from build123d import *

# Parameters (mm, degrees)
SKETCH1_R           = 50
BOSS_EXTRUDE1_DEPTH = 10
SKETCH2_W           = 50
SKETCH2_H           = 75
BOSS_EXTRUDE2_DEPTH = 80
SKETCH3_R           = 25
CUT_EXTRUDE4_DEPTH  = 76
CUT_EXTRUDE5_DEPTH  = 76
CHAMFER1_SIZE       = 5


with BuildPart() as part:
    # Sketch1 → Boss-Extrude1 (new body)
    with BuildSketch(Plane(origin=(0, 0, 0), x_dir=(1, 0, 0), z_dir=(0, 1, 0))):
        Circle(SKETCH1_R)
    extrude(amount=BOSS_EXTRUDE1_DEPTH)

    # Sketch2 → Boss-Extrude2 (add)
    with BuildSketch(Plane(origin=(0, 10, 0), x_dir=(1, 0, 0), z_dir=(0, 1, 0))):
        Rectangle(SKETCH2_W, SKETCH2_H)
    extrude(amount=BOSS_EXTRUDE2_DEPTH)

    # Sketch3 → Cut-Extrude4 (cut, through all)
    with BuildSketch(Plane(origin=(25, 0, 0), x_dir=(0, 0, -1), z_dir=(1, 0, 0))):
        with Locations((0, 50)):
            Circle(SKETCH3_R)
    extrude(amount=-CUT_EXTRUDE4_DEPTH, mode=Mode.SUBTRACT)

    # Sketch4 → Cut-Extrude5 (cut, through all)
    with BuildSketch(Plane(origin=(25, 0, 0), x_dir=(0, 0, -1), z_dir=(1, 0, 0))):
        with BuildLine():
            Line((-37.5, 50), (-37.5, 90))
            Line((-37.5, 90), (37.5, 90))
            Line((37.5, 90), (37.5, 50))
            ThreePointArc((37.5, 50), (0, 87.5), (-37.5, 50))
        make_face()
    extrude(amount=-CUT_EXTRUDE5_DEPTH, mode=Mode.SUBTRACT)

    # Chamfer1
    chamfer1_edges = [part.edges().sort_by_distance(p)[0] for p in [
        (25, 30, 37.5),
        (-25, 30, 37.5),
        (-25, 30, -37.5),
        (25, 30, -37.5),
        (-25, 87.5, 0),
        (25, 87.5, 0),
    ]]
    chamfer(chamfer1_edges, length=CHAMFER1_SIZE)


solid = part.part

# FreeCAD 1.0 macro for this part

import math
import FreeCAD as App
import Part
import Sketcher
from FreeCAD import Vector


def edges_at(feature, points):
    """Names of the edges that pass closest to the given points."""
    edges = feature.Shape.Edges
    near = lambda p: min(range(len(edges)), key=lambda i: edges[i].distToShape(Part.Vertex(*p))[0])
    return sorted({f"Edge{near(p) + 1}" for p in points})

doc = App.newDocument("Part")
body = doc.addObject("PartDesign::Body", "Body")

# Sketch on XZ plane
sketch1 = body.newObject("Sketcher::SketchObject", "Sketch")
sketch1.AttachmentSupport = (doc.getObject("XZ_Plane"), [""])
sketch1.MapMode = "FlatFace"
sketch1.addGeometry(Part.Circle(Vector(0, 0, 0), Vector(0, 0, 1), 50), False)
sketch1.addConstraint([
    Sketcher.Constraint("Coincident", 0, 3, -1, 1),
    Sketcher.Constraint("Diameter", 0, 100.0),
])
pad1 = body.newObject("PartDesign::Pad", "Pad")
pad1.Profile = sketch1
pad1.Length = 10
pad1.Reversed = True

# Sketch on XZ plane
sketch2 = body.newObject("Sketcher::SketchObject", "Sketch001")
sketch2.AttachmentSupport = (doc.getObject("XZ_Plane"), [""])
sketch2.MapMode = "FlatFace"
sketch2.AttachmentOffset = App.Placement(Vector(0, 0, -10), App.Rotation())
sketch2.addGeometry([
    Part.LineSegment(Vector(-25, -38, 0), Vector(-25, 38, 0)),
    Part.LineSegment(Vector(-25, 38, 0), Vector(25, 38, 0)),
    Part.LineSegment(Vector(25, 38, 0), Vector(25, -38, 0)),
    Part.LineSegment(Vector(25, -38, 0), Vector(-25, -38, 0)),
], False)
sketch2.addConstraint([
    Sketcher.Constraint("Coincident", 0, 2, 1, 1),
    Sketcher.Constraint("Coincident", 1, 2, 2, 1),
    Sketcher.Constraint("Coincident", 2, 2, 3, 1),
    Sketcher.Constraint("Coincident", 3, 2, 0, 1),
    Sketcher.Constraint("Vertical", 0),
    Sketcher.Constraint("Horizontal", 1),
    Sketcher.Constraint("Vertical", 2),
    Sketcher.Constraint("Horizontal", 3),
    Sketcher.Constraint("Symmetric", 0, 2, 2, 2, -1, 1),
    Sketcher.Constraint("DistanceX", 1, 1, 1, 2, 50.0),
    Sketcher.Constraint("DistanceY", 0, 1, 0, 2, 75.0),
])
pad2 = body.newObject("PartDesign::Pad", "Pad001")
pad2.Profile = sketch2
pad2.Length = 80
pad2.Reversed = True

# Sketch on YZ plane
sketch3 = body.newObject("Sketcher::SketchObject", "Sketch002")
sketch3.AttachmentSupport = (doc.getObject("YZ_Plane"), [""])
sketch3.MapMode = "FlatFace"
sketch3.AttachmentOffset = App.Placement(Vector(0, 0, 25), App.Rotation())
sketch3.addGeometry(Part.Circle(Vector(50, 0, 0), Vector(0, 0, 1), 25), False)
sketch3.addConstraint([
    Sketcher.Constraint("PointOnObject", 0, 3, -1),
    Sketcher.Constraint("Diameter", 0, 50.0),
    Sketcher.Constraint("DistanceX", -1, 1, 0, 3, 50.0),
])
pocket1 = body.newObject("PartDesign::Pocket", "Pocket")
pocket1.Profile = sketch3
pocket1.Type = "ThroughAll"

# Sketch on YZ plane
sketch4 = body.newObject("Sketcher::SketchObject", "Sketch003")
sketch4.AttachmentSupport = (doc.getObject("YZ_Plane"), [""])
sketch4.MapMode = "FlatFace"
sketch4.AttachmentOffset = App.Placement(Vector(0, 0, 25), App.Rotation())
sketch4.addGeometry([
    Part.LineSegment(Vector(90, 38, 0), Vector(50, 38, 0)),
    Part.ArcOfCircle(Part.Circle(Vector(50, 0, 0), Vector(0, 0, 1), 38), math.radians(-90), math.radians(90)),
    Part.LineSegment(Vector(50, -38, 0), Vector(90, -38, 0)),
    Part.LineSegment(Vector(90, -38, 0), Vector(90, 38, 0)),
], False)
sketch4.addConstraint([
    Sketcher.Constraint("Tangent", 0, 2, 1, 2),
    Sketcher.Constraint("Tangent", 1, 1, 2, 1),
    Sketcher.Constraint("Coincident", 2, 2, 3, 1),
    Sketcher.Constraint("Coincident", 3, 2, 0, 1),
    Sketcher.Constraint("Horizontal", 0),
    Sketcher.Constraint("Horizontal", 2),
    Sketcher.Constraint("Vertical", 3),
    Sketcher.Constraint("PointOnObject", 1, 3, -1),
    Sketcher.Constraint("Radius", 1, 37.5),
    Sketcher.Constraint("DistanceX", 0, 2, 0, 1, 40.0),
    Sketcher.Constraint("DistanceX", -1, 1, 1, 3, 50.0),
])
pocket2 = body.newObject("PartDesign::Pocket", "Pocket001")
pocket2.Profile = sketch4
pocket2.Type = "ThroughAll"
doc.recompute()

chamfer = body.newObject("PartDesign::Chamfer", "Chamfer")
chamfer.Base = (pocket2, edges_at(pocket2, [
    (25, 30, 37.5),
    (-25, 30, 37.5),
    (-25, 30, -37.5),
    (25, 30, -37.5),
    (-25, 87.5, 0),
    (25, 87.5, 0),
]))
chamfer.Size = 5

doc.recompute()
